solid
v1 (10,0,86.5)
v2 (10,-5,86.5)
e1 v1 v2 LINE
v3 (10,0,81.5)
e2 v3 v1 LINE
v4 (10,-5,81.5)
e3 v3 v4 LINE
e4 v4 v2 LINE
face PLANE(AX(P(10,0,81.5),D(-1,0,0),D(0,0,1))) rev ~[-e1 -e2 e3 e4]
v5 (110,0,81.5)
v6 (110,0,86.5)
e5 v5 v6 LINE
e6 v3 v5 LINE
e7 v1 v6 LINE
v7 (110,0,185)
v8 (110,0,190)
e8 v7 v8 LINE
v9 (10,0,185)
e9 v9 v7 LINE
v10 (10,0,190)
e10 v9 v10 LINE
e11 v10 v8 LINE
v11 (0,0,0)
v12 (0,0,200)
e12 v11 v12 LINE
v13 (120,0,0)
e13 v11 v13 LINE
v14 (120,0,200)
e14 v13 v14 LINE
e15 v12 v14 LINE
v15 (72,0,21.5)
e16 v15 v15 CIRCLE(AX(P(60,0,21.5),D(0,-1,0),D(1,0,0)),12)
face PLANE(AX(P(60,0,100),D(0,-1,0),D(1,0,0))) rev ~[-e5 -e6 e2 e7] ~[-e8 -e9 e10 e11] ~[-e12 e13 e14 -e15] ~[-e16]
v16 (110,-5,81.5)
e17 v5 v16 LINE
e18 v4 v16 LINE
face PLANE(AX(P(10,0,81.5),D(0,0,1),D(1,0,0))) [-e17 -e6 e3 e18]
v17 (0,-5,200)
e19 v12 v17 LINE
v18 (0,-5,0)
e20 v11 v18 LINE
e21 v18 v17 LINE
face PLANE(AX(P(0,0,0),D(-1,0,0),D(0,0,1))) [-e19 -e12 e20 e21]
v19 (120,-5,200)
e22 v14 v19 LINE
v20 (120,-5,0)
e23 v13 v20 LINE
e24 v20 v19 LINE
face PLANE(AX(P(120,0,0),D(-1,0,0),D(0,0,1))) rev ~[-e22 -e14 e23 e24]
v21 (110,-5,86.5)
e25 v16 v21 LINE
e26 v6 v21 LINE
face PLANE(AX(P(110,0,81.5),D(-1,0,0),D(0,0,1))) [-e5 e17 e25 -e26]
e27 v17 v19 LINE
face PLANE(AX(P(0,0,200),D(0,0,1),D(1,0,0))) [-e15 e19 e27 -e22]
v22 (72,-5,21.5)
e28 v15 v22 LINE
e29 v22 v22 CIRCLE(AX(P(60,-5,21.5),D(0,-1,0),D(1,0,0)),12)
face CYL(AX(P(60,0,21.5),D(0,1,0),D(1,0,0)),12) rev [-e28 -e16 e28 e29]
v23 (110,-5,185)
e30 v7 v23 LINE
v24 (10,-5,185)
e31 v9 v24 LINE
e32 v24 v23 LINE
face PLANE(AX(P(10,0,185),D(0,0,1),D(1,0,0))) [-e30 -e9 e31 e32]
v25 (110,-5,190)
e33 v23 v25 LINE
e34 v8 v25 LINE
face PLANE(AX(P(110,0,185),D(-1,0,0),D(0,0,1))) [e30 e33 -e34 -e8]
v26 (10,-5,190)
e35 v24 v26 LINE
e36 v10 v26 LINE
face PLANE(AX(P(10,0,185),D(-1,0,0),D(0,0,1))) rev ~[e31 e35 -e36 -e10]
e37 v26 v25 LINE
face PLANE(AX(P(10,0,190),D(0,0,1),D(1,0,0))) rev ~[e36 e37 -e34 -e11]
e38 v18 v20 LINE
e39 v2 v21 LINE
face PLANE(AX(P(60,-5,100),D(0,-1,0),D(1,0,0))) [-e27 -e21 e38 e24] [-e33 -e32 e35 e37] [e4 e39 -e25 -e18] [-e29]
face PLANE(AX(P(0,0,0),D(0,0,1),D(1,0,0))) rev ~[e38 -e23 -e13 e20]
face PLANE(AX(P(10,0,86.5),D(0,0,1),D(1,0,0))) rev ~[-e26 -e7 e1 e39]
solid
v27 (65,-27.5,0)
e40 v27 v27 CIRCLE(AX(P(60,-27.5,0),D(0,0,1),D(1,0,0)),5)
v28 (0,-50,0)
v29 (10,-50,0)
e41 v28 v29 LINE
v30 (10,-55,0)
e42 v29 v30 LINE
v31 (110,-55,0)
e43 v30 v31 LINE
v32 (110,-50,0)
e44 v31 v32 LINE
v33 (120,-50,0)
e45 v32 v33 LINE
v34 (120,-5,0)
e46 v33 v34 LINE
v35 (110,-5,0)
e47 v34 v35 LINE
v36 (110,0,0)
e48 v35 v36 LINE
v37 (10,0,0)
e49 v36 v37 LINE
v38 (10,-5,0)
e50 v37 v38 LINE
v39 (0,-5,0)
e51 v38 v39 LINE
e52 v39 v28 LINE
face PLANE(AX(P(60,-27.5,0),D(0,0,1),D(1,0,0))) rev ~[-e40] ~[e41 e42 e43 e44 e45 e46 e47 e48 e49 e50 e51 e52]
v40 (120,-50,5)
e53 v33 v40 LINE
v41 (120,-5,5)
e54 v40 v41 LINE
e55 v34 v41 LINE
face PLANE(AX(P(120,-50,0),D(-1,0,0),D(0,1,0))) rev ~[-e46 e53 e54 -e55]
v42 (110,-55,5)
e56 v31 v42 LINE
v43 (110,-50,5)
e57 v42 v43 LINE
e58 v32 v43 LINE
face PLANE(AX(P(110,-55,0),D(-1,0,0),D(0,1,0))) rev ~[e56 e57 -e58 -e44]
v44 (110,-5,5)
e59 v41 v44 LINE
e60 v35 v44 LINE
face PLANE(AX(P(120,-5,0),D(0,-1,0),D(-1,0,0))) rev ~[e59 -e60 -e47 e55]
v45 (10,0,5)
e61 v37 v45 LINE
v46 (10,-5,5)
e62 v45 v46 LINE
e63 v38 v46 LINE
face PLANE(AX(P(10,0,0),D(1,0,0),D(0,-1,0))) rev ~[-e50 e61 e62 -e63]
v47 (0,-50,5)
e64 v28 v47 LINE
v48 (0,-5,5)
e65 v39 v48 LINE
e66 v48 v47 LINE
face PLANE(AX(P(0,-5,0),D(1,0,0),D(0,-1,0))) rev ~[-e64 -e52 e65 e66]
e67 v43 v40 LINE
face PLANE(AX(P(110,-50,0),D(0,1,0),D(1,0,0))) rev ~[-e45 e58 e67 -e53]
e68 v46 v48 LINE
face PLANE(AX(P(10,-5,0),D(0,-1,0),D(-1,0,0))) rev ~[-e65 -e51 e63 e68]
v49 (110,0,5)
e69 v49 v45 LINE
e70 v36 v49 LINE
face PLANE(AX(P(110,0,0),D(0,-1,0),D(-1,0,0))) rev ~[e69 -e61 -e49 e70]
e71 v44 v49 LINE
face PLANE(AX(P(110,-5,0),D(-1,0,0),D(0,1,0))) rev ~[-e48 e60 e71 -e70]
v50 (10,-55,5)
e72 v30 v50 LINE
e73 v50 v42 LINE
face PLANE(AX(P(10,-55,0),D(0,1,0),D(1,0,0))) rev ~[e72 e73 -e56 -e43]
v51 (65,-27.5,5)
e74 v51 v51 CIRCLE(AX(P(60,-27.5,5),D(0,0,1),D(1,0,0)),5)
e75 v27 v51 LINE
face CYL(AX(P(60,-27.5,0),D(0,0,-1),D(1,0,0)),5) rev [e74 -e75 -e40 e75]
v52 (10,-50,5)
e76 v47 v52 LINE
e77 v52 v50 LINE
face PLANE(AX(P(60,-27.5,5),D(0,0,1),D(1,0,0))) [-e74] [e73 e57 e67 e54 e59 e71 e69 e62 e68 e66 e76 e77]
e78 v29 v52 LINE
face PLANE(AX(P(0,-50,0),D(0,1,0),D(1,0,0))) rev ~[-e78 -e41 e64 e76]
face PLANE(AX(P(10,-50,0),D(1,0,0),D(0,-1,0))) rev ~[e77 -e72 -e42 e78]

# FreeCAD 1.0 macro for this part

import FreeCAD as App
import Part
import Sketcher

doc = App.newDocument("Part")
body = doc.addObject("PartDesign::Body", "Body")

# Sketch on XZ plane
sketch1 = body.newObject("Sketcher::SketchObject", "Sketch")
sketch1.AttachmentSupport = (doc.getObject("XZ_Plane"), [""])
sketch1.MapMode = "FlatFace"
sketch1.addGeometry([
    Part.LineSegment(App.Vector(0, 200, 0), App.Vector(0, 0, 0)),  # 0
    Part.LineSegment(App.Vector(0, 0, 0), App.Vector(120, 0, 0)),  # 1
    Part.LineSegment(App.Vector(120, 0, 0), App.Vector(120, 200, 0)),  # 2
    Part.LineSegment(App.Vector(120, 200, 0), App.Vector(0, 200, 0)),  # 3
    Part.Circle(App.Vector(60, 22, 0), App.Vector(0, 0, 1), 12),  # 4
    Part.LineSegment(App.Vector(110, 82, 0), App.Vector(10, 82, 0)),  # 5
    Part.LineSegment(App.Vector(10, 82, 0), App.Vector(10, 86, 0)),  # 6
    Part.LineSegment(App.Vector(10, 86, 0), App.Vector(110, 86, 0)),  # 7
    Part.LineSegment(App.Vector(110, 86, 0), App.Vector(110, 82, 0)),  # 8
    Part.LineSegment(App.Vector(110, 185, 0), App.Vector(10, 185, 0)),  # 9
    Part.LineSegment(App.Vector(10, 185, 0), App.Vector(10, 190, 0)),  # 10
    Part.LineSegment(App.Vector(10, 190, 0), App.Vector(110, 190, 0)),  # 11
    Part.LineSegment(App.Vector(110, 190, 0), App.Vector(110, 185, 0)),  # 12
], False)
sketch1.addConstraint([
    Sketcher.Constraint("Coincident", 0, 2, 1, 1),
    Sketcher.Constraint("Coincident", 1, 2, 2, 1),
    Sketcher.Constraint("Coincident", 2, 2, 3, 1),
    Sketcher.Constraint("Coincident", 3, 2, 0, 1),
    Sketcher.Constraint("Coincident", 5, 2, 6, 1),
    Sketcher.Constraint("Coincident", 6, 2, 7, 1),
    Sketcher.Constraint("Coincident", 7, 2, 8, 1),
    Sketcher.Constraint("Coincident", 8, 2, 5, 1),
    Sketcher.Constraint("Coincident", 9, 2, 10, 1),
    Sketcher.Constraint("Coincident", 10, 2, 11, 1),
    Sketcher.Constraint("Coincident", 11, 2, 12, 1),
    Sketcher.Constraint("Coincident", 12, 2, 9, 1),
    Sketcher.Constraint("Vertical", 0),
    Sketcher.Constraint("Horizontal", 1),
    Sketcher.Constraint("Vertical", 2),
    Sketcher.Constraint("Horizontal", 3),
    Sketcher.Constraint("Horizontal", 5),
    Sketcher.Constraint("Vertical", 6),
    Sketcher.Constraint("Horizontal", 7),
    Sketcher.Constraint("Vertical", 8),
    Sketcher.Constraint("Horizontal", 9),
    Sketcher.Constraint("Vertical", 10),
    Sketcher.Constraint("Horizontal", 11),
    Sketcher.Constraint("Vertical", 12),
    Sketcher.Constraint("Coincident", 0, 2, -1, 1),
    Sketcher.Constraint("Vertical", 6, 2, 9, 2),
    Sketcher.Constraint("Vertical", 8, 2, 11, 2),
    Sketcher.Constraint("Equal", 8, 10),
    Sketcher.Constraint("Diameter", 4, 24.0),
    Sketcher.Constraint("DistanceX", 1, 1, 1, 2, 120.0),
    Sketcher.Constraint("DistanceX", 5, 2, 5, 1, 100.0),
    Sketcher.Constraint("DistanceY", 0, 2, 0, 1, 200.0),
    Sketcher.Constraint("DistanceY", 6, 1, 6, 2, 5.0),
    Sketcher.Constraint("DistanceX", -1, 1, 4, 3, 60.0),
    Sketcher.Constraint("DistanceX", -1, 1, 5, 2, 10.0),
    Sketcher.Constraint("DistanceY", -1, 1, 9, 2, 185.0),
    Sketcher.Constraint("DistanceY", 4, 3, 5, 2, 60.0),
    Sketcher.Constraint("DistanceY", -1, 1, 4, 3, 21.5),
])
pad1 = body.newObject("PartDesign::Pad", "Pad")
pad1.Profile = sketch1
pad1.Length = 5
body2 = doc.addObject("PartDesign::Body", "Body001")

# Sketch on XY plane
sketch2 = body2.newObject("Sketcher::SketchObject", "Sketch001")
sketch2.AttachmentSupport = (doc.getObject("XY_Plane001"), [""])
sketch2.MapMode = "FlatFace"
sketch2.addGeometry([
    Part.LineSegment(App.Vector(110, 0, 0), App.Vector(10, 0, 0)),  # 0
    Part.LineSegment(App.Vector(10, 0, 0), App.Vector(10, -5, 0)),  # 1
    Part.LineSegment(App.Vector(10, -5, 0), App.Vector(0, -5, 0)),  # 2
    Part.LineSegment(App.Vector(0, -5, 0), App.Vector(0, -50, 0)),  # 3
    Part.LineSegment(App.Vector(0, -50, 0), App.Vector(10, -50, 0)),  # 4
    Part.LineSegment(App.Vector(10, -50, 0), App.Vector(10, -55, 0)),  # 5
    Part.LineSegment(App.Vector(10, -55, 0), App.Vector(110, -55, 0)),  # 6
    Part.LineSegment(App.Vector(110, -55, 0), App.Vector(110, -50, 0)),  # 7
    Part.LineSegment(App.Vector(110, -50, 0), App.Vector(120, -50, 0)),  # 8
    Part.LineSegment(App.Vector(120, -50, 0), App.Vector(120, -5, 0)),  # 9
    Part.LineSegment(App.Vector(120, -5, 0), App.Vector(110, -5, 0)),  # 10
    Part.LineSegment(App.Vector(110, -5, 0), App.Vector(110, 0, 0)),  # 11
    Part.Circle(App.Vector(60, -28, 0), App.Vector(0, 0, 1), 5),  # 12
], False)
sketch2.addConstraint([
    Sketcher.Constraint("Coincident", 0, 2, 1, 1),
    Sketcher.Constraint("Coincident", 1, 2, 2, 1),
    Sketcher.Constraint("Coincident", 2, 2, 3, 1),
    Sketcher.Constraint("Coincident", 3, 2, 4, 1),
    Sketcher.Constraint("Coincident", 4, 2, 5, 1),
    Sketcher.Constraint("Coincident", 5, 2, 6, 1),
    Sketcher.Constraint("Coincident", 6, 2, 7, 1),
    Sketcher.Constraint("Coincident", 7, 2, 8, 1),
    Sketcher.Constraint("Coincident", 8, 2, 9, 1),
    Sketcher.Constraint("Coincident", 9, 2, 10, 1),
    Sketcher.Constraint("Coincident", 10, 2, 11, 1),
    Sketcher.Constraint("Coincident", 11, 2, 0, 1),
    Sketcher.Constraint("Horizontal", 0),
    Sketcher.Constraint("Vertical", 1),
    Sketcher.Constraint("Horizontal", 2),
    Sketcher.Constraint("Vertical", 3),
    Sketcher.Constraint("Horizontal", 4),
    Sketcher.Constraint("Vertical", 5),
    Sketcher.Constraint("Horizontal", 6),
    Sketcher.Constraint("Vertical", 7),
    Sketcher.Constraint("Horizontal", 8),
    Sketcher.Constraint("Vertical", 9),
    Sketcher.Constraint("Horizontal", 10),
    Sketcher.Constraint("Vertical", 11),
    Sketcher.Constraint("PointOnObject", 0, 2, -1),
    Sketcher.Constraint("PointOnObject", 2, 2, -2),
    Sketcher.Constraint("Horizontal", 4, 2, 7, 2),
    Sketcher.Constraint("Horizontal", 2, 2, 9, 2),
    Sketcher.Constraint("Vertical", 1, 2, 4, 2),
    Sketcher.Constraint("Vertical", 7, 2, 10, 2),
    Sketcher.Constraint("Equal", 4, 8),
    Sketcher.Constraint("Equal", 1, 5),
    Sketcher.Constraint("Diameter", 12, 10.0),
    Sketcher.Constraint("DistanceX", 0, 2, 0, 1, 100.0),
    Sketcher.Constraint("DistanceX", 2, 2, 2, 1, 10.0),
    Sketcher.Constraint("DistanceY", 1, 2, 1, 1, 5.0),
    Sketcher.Constraint("DistanceY", 3, 2, 3, 1, 45.0),
    Sketcher.Constraint("DistanceX", -1, 1, 12, 3, 60.0),
    Sketcher.Constraint("DistanceY", 12, 3, -1, 1, 27.5),
])
pad2 = body2.newObject("PartDesign::Pad", "Pad001")
pad2.Profile = sketch2
pad2.Length = 5

doc.recompute()
